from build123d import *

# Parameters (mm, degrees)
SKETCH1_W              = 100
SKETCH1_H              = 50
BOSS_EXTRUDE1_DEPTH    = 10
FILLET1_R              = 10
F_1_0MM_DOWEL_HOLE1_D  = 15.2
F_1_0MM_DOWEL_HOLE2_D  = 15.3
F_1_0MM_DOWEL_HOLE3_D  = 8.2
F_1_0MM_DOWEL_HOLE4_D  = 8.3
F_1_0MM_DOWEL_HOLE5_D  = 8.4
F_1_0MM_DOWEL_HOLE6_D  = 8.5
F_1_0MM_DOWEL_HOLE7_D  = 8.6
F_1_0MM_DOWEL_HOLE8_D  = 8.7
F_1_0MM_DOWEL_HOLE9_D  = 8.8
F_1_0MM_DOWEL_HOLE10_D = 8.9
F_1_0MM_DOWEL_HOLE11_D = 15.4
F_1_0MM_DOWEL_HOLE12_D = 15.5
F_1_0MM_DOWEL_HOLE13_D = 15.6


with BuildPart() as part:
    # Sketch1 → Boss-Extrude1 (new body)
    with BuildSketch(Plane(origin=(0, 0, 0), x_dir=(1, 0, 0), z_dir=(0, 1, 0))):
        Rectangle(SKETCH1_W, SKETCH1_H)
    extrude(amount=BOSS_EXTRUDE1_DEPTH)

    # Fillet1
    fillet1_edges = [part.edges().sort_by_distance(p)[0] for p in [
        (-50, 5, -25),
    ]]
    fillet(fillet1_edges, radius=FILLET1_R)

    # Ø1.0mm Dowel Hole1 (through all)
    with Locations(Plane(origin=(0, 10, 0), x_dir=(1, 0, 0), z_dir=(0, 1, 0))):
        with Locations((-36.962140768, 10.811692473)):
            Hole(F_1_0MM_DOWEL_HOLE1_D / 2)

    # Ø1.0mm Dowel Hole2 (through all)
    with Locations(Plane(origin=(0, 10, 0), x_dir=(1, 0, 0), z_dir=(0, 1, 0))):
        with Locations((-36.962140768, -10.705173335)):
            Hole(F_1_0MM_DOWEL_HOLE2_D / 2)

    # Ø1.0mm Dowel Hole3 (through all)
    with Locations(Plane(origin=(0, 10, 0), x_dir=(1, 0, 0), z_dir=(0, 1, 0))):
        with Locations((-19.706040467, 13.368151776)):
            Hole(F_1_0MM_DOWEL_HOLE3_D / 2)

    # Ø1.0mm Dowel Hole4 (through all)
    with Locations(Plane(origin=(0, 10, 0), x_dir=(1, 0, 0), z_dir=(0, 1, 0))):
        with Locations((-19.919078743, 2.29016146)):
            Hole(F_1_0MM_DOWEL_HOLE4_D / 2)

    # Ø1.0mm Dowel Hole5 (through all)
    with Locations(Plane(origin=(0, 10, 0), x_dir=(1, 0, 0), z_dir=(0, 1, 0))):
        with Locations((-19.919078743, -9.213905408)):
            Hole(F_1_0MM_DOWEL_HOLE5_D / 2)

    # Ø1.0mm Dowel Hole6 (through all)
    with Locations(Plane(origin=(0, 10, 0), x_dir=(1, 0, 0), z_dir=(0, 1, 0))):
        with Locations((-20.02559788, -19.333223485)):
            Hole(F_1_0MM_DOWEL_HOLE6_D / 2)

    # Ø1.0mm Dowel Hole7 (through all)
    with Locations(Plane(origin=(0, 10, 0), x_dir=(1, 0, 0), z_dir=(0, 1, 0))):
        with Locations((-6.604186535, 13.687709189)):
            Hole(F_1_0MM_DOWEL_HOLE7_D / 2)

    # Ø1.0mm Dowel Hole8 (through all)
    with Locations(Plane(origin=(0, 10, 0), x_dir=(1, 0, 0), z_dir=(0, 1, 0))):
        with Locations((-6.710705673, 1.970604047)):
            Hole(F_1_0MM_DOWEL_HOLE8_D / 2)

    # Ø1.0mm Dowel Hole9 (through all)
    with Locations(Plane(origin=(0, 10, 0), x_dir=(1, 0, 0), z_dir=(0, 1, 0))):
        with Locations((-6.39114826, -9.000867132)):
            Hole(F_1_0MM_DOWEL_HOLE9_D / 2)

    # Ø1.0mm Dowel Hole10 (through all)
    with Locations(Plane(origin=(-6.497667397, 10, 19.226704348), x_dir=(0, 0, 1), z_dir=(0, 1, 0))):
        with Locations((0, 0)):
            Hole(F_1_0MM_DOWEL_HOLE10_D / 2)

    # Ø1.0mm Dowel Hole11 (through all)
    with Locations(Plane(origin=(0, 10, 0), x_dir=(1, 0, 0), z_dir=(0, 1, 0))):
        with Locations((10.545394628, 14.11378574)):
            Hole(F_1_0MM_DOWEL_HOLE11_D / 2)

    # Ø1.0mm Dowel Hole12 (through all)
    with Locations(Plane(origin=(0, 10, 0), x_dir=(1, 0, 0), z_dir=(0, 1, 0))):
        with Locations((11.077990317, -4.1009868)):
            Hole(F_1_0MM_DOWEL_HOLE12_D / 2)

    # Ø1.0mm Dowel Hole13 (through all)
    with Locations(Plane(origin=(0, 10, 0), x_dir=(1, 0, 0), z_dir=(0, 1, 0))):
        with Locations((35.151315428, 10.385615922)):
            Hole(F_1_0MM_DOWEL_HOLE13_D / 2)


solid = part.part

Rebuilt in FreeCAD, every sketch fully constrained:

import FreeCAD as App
import Part
import Sketcher
Q = App.Units.Quantity


def edges_at(feature, points):
    """Names of the edges that pass closest to the given points."""
    edges = feature.Shape.Edges
    near = lambda p: min(range(len(edges)), key=lambda i: edges[i].distToShape(Part.Vertex(*p))[0])
    return sorted({f"Edge{near(p) + 1}" for p in points})

doc = App.newDocument("Part")
body = doc.addObject("PartDesign::Body", "Body")

# Sketch on XZ plane
sketch1 = body.newObject("Sketcher::SketchObject", "Sketch")
sketch1.AttachmentSupport = (doc.getObject("XZ_Plane"), [""])
sketch1.MapMode = "FlatFace"
sketch1.addGeometry(Part.LineSegment(App.Vector(-50, -25, 0), App.Vector(-50, 25, 0)), False)
sketch1.addGeometry(Part.LineSegment(App.Vector(-50, 25, 0), App.Vector(50, 25, 0)), False)
sketch1.addGeometry(Part.LineSegment(App.Vector(50, 25, 0), App.Vector(50, -25, 0)), False)
sketch1.addGeometry(Part.LineSegment(App.Vector(50, -25, 0), App.Vector(-50, -25, 0)), False)
sketch1.addConstraint(Sketcher.Constraint("Coincident", 0, 2, 1, 1))
sketch1.addConstraint(Sketcher.Constraint("Coincident", 1, 2, 2, 1))
sketch1.addConstraint(Sketcher.Constraint("Coincident", 2, 2, 3, 1))
sketch1.addConstraint(Sketcher.Constraint("Coincident", 3, 2, 0, 1))
sketch1.addConstraint(Sketcher.Constraint("Vertical", 0))
sketch1.addConstraint(Sketcher.Constraint("Horizontal", 1))
sketch1.addConstraint(Sketcher.Constraint("Vertical", 2))
sketch1.addConstraint(Sketcher.Constraint("Horizontal", 3))
sketch1.addConstraint(Sketcher.Constraint("Symmetric", 0, 2, 2, 2, -1, 1))
sketch1.addConstraint(Sketcher.Constraint("DistanceX", 1, 1, 1, 2, Q("100 mm")))
sketch1.addConstraint(Sketcher.Constraint("DistanceY", 0, 1, 0, 2, Q("50 mm")))
pad1 = body.newObject("PartDesign::Pad", "Pad")
pad1.Profile = sketch1
pad1.Length = 10
pad1.Reversed = True
doc.recompute()

fillet = body.newObject("PartDesign::Fillet", "Fillet")
fillet.Base = (pad1, edges_at(pad1, [(-50, 5, -25)]))
fillet.Radius = 10

# Sketch on XZ plane
sketch2 = body.newObject("Sketcher::SketchObject", "Sketch001")
sketch2.AttachmentSupport = (doc.getObject("XZ_Plane"), [""])
sketch2.MapMode = "FlatFace"
sketch2.AttachmentOffset = App.Placement(App.Vector(0, 0, -10), App.Rotation())
sketch2.addGeometry(Part.Circle(App.Vector(-37, -11, 0), App.Vector(0, 0, 1), 8), False)
sketch2.addConstraint(Sketcher.Constraint("Diameter", 0, Q("15.2 mm")))
sketch2.addConstraint(Sketcher.Constraint("DistanceX", 0, 3, -1, 1, Q("36.962141 mm")))
sketch2.addConstraint(Sketcher.Constraint("DistanceY", 0, 3, -1, 1, Q("10.811692 mm")))
doc.recompute()
hole = body.newObject("PartDesign::Hole", "Hole")
hole.Profile = sketch2
hole.ThreadType = "None"
hole.Diameter = 15.2
hole.DepthType = "ThroughAll"
hole.Reversed = True

# Sketch on XZ plane
sketch3 = body.newObject("Sketcher::SketchObject", "Sketch002")
sketch3.AttachmentSupport = (doc.getObject("XZ_Plane"), [""])
sketch3.MapMode = "FlatFace"
sketch3.AttachmentOffset = App.Placement(App.Vector(0, 0, -10), App.Rotation())
sketch3.addGeometry(Part.Circle(App.Vector(-37, 11, 0), App.Vector(0, 0, 1), 8), False)
sketch3.addConstraint(Sketcher.Constraint("Diameter", 0, Q("15.3 mm")))
sketch3.addConstraint(Sketcher.Constraint("DistanceX", 0, 3, -1, 1, Q("36.962141 mm")))
sketch3.addConstraint(Sketcher.Constraint("DistanceY", -1, 1, 0, 3, Q("10.705173 mm")))
doc.recompute()
hole2 = body.newObject("PartDesign::Hole", "Hole001")
hole2.Profile = sketch3
hole2.ThreadType = "None"
hole2.Diameter = 15.3
hole2.DepthType = "ThroughAll"
hole2.Reversed = True

# Sketch on XZ plane
sketch4 = body.newObject("Sketcher::SketchObject", "Sketch003")
sketch4.AttachmentSupport = (doc.getObject("XZ_Plane"), [""])
sketch4.MapMode = "FlatFace"
sketch4.AttachmentOffset = App.Placement(App.Vector(0, 0, -10), App.Rotation())
sketch4.addGeometry(Part.Circle(App.Vector(-19.7, -13.4, 0), App.Vector(0, 0, 1), 4.1), False)
sketch4.addConstraint(Sketcher.Constraint("Diameter", 0, Q("8.2 mm")))
sketch4.addConstraint(Sketcher.Constraint("DistanceX", 0, 3, -1, 1, Q("19.70604 mm")))
sketch4.addConstraint(Sketcher.Constraint("DistanceY", 0, 3, -1, 1, Q("13.368152 mm")))
doc.recompute()
hole3 = body.newObject("PartDesign::Hole", "Hole002")
hole3.Profile = sketch4
hole3.ThreadType = "None"
hole3.Diameter = 8.2
hole3.DepthType = "ThroughAll"
hole3.Reversed = True

# Sketch on XZ plane
sketch5 = body.newObject("Sketcher::SketchObject", "Sketch004")
sketch5.AttachmentSupport = (doc.getObject("XZ_Plane"), [""])
sketch5.MapMode = "FlatFace"
sketch5.AttachmentOffset = App.Placement(App.Vector(0, 0, -10), App.Rotation())
sketch5.addGeometry(Part.Circle(App.Vector(-19.9, -2.3, 0), App.Vector(0, 0, 1), 4.2), False)
sketch5.addConstraint(Sketcher.Constraint("Diameter", 0, Q("8.3 mm")))
sketch5.addConstraint(Sketcher.Constraint("DistanceX", 0, 3, -1, 1, Q("19.919079 mm")))
sketch5.addConstraint(Sketcher.Constraint("DistanceY", 0, 3, -1, 1, Q("2.290161 mm")))
doc.recompute()
hole4 = body.newObject("PartDesign::Hole", "Hole003")
hole4.Profile = sketch5
hole4.ThreadType = "None"
hole4.Diameter = 8.3
hole4.DepthType = "ThroughAll"
hole4.Reversed = True

# Sketch on XZ plane
sketch6 = body.newObject("Sketcher::SketchObject", "Sketch005")
sketch6.AttachmentSupport = (doc.getObject("XZ_Plane"), [""])
sketch6.MapMode = "FlatFace"
sketch6.AttachmentOffset = App.Placement(App.Vector(0, 0, -10), App.Rotation())
sketch6.addGeometry(Part.Circle(App.Vector(-19.9, 9.2, 0), App.Vector(0, 0, 1), 4.2), False)
sketch6.addConstraint(Sketcher.Constraint("Diameter", 0, Q("8.4 mm")))
sketch6.addConstraint(Sketcher.Constraint("DistanceX", 0, 3, -1, 1, Q("19.919079 mm")))
sketch6.addConstraint(Sketcher.Constraint("DistanceY", -1, 1, 0, 3, Q("9.213905 mm")))
doc.recompute()
hole5 = body.newObject("PartDesign::Hole", "Hole004")
hole5.Profile = sketch6
hole5.ThreadType = "None"
hole5.Diameter = 8.4
hole5.DepthType = "ThroughAll"
hole5.Reversed = True

# Sketch on XZ plane
sketch7 = body.newObject("Sketcher::SketchObject", "Sketch006")
sketch7.AttachmentSupport = (doc.getObject("XZ_Plane"), [""])
sketch7.MapMode = "FlatFace"
sketch7.AttachmentOffset = App.Placement(App.Vector(0, 0, -10), App.Rotation())
sketch7.addGeometry(Part.Circle(App.Vector(-20, 19.3, 0), App.Vector(0, 0, 1), 4.2), False)
sketch7.addConstraint(Sketcher.Constraint("Diameter", 0, Q("8.5 mm")))
sketch7.addConstraint(Sketcher.Constraint("DistanceX", 0, 3, -1, 1, Q("20.025598 mm")))
sketch7.addConstraint(Sketcher.Constraint("DistanceY", -1, 1, 0, 3, Q("19.333223 mm")))
doc.recompute()
hole6 = body.newObject("PartDesign::Hole", "Hole005")
hole6.Profile = sketch7
hole6.ThreadType = "None"
hole6.Diameter = 8.5
hole6.DepthType = "ThroughAll"
hole6.Reversed = True

# Sketch on XZ plane
sketch8 = body.newObject("Sketcher::SketchObject", "Sketch007")
sketch8.AttachmentSupport = (doc.getObject("XZ_Plane"), [""])
sketch8.MapMode = "FlatFace"
sketch8.AttachmentOffset = App.Placement(App.Vector(0, 0, -10), App.Rotation())
sketch8.addGeometry(Part.Circle(App.Vector(-6.6, -13.7, 0), App.Vector(0, 0, 1), 4.3), False)
sketch8.addConstraint(Sketcher.Constraint("Diameter", 0, Q("8.6 mm")))
sketch8.addConstraint(Sketcher.Constraint("DistanceY", 0, 3, -1, 1, Q("13.687709 mm")))
sketch8.addConstraint(Sketcher.Constraint("DistanceX", 0, 3, -1, 1, Q("6.604187 mm")))
doc.recompute()
hole7 = body.newObject("PartDesign::Hole", "Hole006")
hole7.Profile = sketch8
hole7.ThreadType = "None"
hole7.Diameter = 8.6
hole7.DepthType = "ThroughAll"
hole7.Reversed = True

# Sketch on XZ plane
sketch9 = body.newObject("Sketcher::SketchObject", "Sketch008")
sketch9.AttachmentSupport = (doc.getObject("XZ_Plane"), [""])
sketch9.MapMode = "FlatFace"
sketch9.AttachmentOffset = App.Placement(App.Vector(0, 0, -10), App.Rotation())
sketch9.addGeometry(Part.Circle(App.Vector(-6.7, -2, 0), App.Vector(0, 0, 1), 4.3), False)
sketch9.addConstraint(Sketcher.Constraint("Diameter", 0, Q("8.7 mm")))
sketch9.addConstraint(Sketcher.Constraint("DistanceX", 0, 3, -1, 1, Q("6.710706 mm")))
sketch9.addConstraint(Sketcher.Constraint("DistanceY", 0, 3, -1, 1, Q("1.970604 mm")))
doc.recompute()
hole8 = body.newObject("PartDesign::Hole", "Hole007")
hole8.Profile = sketch9
hole8.ThreadType = "None"
hole8.Diameter = 8.7
hole8.DepthType = "ThroughAll"
hole8.Reversed = True

# Sketch on XZ plane
sketch10 = body.newObject("Sketcher::SketchObject", "Sketch009")
sketch10.AttachmentSupport = (doc.getObject("XZ_Plane"), [""])
sketch10.MapMode = "FlatFace"
sketch10.AttachmentOffset = App.Placement(App.Vector(0, 0, -10), App.Rotation())
sketch10.addGeometry(Part.Circle(App.Vector(-6.4, 9, 0), App.Vector(0, 0, 1), 4.4), False)
sketch10.addConstraint(Sketcher.Constraint("Diameter", 0, Q("8.8 mm")))
sketch10.addConstraint(Sketcher.Constraint("DistanceX", 0, 3, -1, 1, Q("6.391148 mm")))
sketch10.addConstraint(Sketcher.Constraint("DistanceY", -1, 1, 0, 3, Q("9.000867 mm")))
doc.recompute()
hole9 = body.newObject("PartDesign::Hole", "Hole008")
hole9.Profile = sketch10
hole9.ThreadType = "None"
hole9.Diameter = 8.8
hole9.DepthType = "ThroughAll"
hole9.Reversed = True

# Sketch on XZ plane
sketch11 = body.newObject("Sketcher::SketchObject", "Sketch010")
sketch11.AttachmentSupport = (doc.getObject("XZ_Plane"), [""])
sketch11.MapMode = "FlatFace"
sketch11.AttachmentOffset = App.Placement(App.Vector(0, 0, -10), App.Rotation())
sketch11.addGeometry(Part.Circle(App.Vector(-6.5, 19.2, 0), App.Vector(0, 0, 1), 4.5), False)
sketch11.addConstraint(Sketcher.Constraint("Diameter", 0, Q("8.9 mm")))
sketch11.addConstraint(Sketcher.Constraint("DistanceX", 0, 3, -1, 1, Q("6.497667 mm")))
sketch11.addConstraint(Sketcher.Constraint("DistanceY", -1, 1, 0, 3, Q("19.226704 mm")))
doc.recompute()
hole10 = body.newObject("PartDesign::Hole", "Hole009")
hole10.Profile = sketch11
hole10.ThreadType = "None"
hole10.Diameter = 8.9
hole10.DepthType = "ThroughAll"
hole10.Reversed = True

# Sketch on XZ plane
sketch12 = body.newObject("Sketcher::SketchObject", "Sketch011")
sketch12.AttachmentSupport = (doc.getObject("XZ_Plane"), [""])
sketch12.MapMode = "FlatFace"
sketch12.AttachmentOffset = App.Placement(App.Vector(0, 0, -10), App.Rotation())
sketch12.addGeometry(Part.Circle(App.Vector(11, -14, 0), App.Vector(0, 0, 1), 8), False)
sketch12.addConstraint(Sketcher.Constraint("Diameter", 0, Q("15.4 mm")))
sketch12.addConstraint(Sketcher.Constraint("DistanceX", -1, 1, 0, 3, Q("10.545395 mm")))
sketch12.addConstraint(Sketcher.Constraint("DistanceY", 0, 3, -1, 1, Q("14.113786 mm")))
doc.recompute()
hole11 = body.newObject("PartDesign::Hole", "Hole010")
hole11.Profile = sketch12
hole11.ThreadType = "None"
hole11.Diameter = 15.4
hole11.DepthType = "ThroughAll"
hole11.Reversed = True

# Sketch on XZ plane
sketch13 = body.newObject("Sketcher::SketchObject", "Sketch012")
sketch13.AttachmentSupport = (doc.getObject("XZ_Plane"), [""])
sketch13.MapMode = "FlatFace"
sketch13.AttachmentOffset = App.Placement(App.Vector(0, 0, -10), App.Rotation())
sketch13.addGeometry(Part.Circle(App.Vector(11, 4, 0), App.Vector(0, 0, 1), 8), False)
sketch13.addConstraint(Sketcher.Constraint("Diameter", 0, Q("15.5 mm")))
sketch13.addConstraint(Sketcher.Constraint("DistanceX", -1, 1, 0, 3, Q("11.07799 mm")))
sketch13.addConstraint(Sketcher.Constraint("DistanceY", -1, 1, 0, 3, Q("4.100987 mm")))
doc.recompute()
hole12 = body.newObject("PartDesign::Hole", "Hole011")
hole12.Profile = sketch13
hole12.ThreadType = "None"
hole12.Diameter = 15.5
hole12.DepthType = "ThroughAll"
hole12.Reversed = True

# Sketch on XZ plane
sketch14 = body.newObject("Sketcher::SketchObject", "Sketch013")
sketch14.AttachmentSupport = (doc.getObject("XZ_Plane"), [""])
sketch14.MapMode = "FlatFace"
sketch14.AttachmentOffset = App.Placement(App.Vector(0, 0, -10), App.Rotation())
sketch14.addGeometry(Part.Circle(App.Vector(35, -10, 0), App.Vector(0, 0, 1), 8), False)
sketch14.addConstraint(Sketcher.Constraint("Diameter", 0, Q("15.6 mm")))
sketch14.addConstraint(Sketcher.Constraint("DistanceX", -1, 1, 0, 3, Q("35.151315 mm")))
sketch14.addConstraint(Sketcher.Constraint("DistanceY", 0, 3, -1, 1, Q("10.385616 mm")))
doc.recompute()
hole13 = body.newObject("PartDesign::Hole", "Hole012")
hole13.Profile = sketch14
hole13.ThreadType = "None"
hole13.Diameter = 15.6
hole13.DepthType = "ThroughAll"
hole13.Reversed = True

doc.recompute()
